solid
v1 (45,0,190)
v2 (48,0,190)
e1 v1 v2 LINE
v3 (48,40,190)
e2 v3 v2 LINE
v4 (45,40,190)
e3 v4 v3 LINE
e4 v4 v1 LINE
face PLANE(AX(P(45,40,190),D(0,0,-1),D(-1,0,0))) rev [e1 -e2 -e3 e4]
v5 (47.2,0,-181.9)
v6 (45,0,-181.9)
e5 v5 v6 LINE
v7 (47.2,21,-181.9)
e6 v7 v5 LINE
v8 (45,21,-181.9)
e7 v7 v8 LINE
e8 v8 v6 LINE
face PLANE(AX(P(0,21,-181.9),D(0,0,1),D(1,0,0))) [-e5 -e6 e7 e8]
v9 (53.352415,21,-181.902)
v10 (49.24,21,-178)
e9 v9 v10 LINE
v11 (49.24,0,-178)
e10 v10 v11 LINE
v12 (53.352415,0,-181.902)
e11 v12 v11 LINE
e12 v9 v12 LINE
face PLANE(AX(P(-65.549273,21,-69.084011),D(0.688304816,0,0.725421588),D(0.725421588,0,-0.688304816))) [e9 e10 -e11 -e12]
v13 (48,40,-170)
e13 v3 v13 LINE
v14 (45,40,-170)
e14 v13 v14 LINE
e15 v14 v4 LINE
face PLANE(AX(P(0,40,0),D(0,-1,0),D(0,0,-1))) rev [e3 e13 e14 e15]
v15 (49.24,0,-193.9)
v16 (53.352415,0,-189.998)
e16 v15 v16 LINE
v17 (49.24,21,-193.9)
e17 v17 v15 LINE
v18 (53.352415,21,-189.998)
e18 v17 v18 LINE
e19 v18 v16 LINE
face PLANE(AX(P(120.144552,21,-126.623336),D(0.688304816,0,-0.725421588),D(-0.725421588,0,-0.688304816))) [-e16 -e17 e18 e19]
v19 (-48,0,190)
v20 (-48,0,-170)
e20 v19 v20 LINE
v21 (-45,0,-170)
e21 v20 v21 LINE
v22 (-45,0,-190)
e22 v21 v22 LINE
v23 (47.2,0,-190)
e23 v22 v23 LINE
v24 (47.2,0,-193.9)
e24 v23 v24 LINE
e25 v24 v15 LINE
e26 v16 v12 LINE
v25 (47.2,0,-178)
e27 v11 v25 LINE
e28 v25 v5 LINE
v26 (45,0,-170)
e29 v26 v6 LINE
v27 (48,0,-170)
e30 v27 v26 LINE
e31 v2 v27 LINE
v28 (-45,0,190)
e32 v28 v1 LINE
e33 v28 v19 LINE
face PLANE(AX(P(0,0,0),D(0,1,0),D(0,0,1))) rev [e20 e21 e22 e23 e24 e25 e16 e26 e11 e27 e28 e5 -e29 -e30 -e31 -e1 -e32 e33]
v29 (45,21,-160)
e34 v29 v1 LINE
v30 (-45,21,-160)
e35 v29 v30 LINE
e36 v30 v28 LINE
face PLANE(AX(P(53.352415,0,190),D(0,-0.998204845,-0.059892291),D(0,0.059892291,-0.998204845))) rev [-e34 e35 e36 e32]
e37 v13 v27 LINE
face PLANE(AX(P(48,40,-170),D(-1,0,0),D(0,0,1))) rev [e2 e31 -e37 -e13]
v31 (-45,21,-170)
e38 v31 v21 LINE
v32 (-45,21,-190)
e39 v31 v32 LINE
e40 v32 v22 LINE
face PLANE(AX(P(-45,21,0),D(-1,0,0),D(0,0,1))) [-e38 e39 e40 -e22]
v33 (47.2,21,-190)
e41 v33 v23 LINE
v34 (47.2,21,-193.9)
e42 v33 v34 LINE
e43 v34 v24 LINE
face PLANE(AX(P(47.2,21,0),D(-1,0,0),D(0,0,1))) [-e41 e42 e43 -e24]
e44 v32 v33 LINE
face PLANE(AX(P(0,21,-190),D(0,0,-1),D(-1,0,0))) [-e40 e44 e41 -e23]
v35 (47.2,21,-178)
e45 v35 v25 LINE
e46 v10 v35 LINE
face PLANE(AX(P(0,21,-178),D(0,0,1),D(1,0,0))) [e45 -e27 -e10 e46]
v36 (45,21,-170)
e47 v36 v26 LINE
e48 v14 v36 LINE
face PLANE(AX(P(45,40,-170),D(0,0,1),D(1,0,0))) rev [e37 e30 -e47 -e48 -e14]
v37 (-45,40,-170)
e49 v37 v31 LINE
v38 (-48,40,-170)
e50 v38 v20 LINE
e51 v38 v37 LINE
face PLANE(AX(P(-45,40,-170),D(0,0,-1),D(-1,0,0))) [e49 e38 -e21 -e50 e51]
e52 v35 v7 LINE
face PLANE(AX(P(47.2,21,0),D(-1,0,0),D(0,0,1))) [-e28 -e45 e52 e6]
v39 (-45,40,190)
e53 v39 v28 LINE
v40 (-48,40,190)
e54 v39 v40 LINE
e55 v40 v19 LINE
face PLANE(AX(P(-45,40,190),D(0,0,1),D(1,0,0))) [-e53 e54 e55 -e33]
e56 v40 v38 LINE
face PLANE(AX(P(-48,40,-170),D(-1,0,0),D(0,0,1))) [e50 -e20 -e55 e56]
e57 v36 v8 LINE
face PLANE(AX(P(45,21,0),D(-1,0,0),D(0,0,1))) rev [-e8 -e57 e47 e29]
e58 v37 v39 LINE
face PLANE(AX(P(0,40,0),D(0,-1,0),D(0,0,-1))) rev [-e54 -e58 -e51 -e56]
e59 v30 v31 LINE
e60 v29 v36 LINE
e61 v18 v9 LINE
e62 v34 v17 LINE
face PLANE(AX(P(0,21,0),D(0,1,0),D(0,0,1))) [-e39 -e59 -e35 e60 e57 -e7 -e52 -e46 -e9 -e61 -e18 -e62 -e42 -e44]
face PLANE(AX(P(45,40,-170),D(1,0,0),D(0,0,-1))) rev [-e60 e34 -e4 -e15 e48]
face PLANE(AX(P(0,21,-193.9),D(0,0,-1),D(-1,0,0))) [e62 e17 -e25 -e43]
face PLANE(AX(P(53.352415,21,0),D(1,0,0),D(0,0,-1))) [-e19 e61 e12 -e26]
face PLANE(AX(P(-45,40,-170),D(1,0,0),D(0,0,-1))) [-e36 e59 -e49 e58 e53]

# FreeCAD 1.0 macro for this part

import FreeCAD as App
import Part
import Sketcher

doc = App.newDocument("Part")
body = doc.addObject("PartDesign::Body", "Body")

# Sketch on XZ plane
sketch1 = body.newObject("Sketcher::SketchObject", "Sketch")
sketch1.AttachmentSupport = (doc.getObject("XZ_Plane"), [""])
sketch1.MapMode = "FlatFace"
sketch1.addGeometry([
    Part.LineSegment(App.Vector(-45, -190, 0), App.Vector(-45, 190, 0)),  # 0
    Part.LineSegment(App.Vector(-45, 190, 0), App.Vector(45, 190, 0)),  # 1
    Part.LineSegment(App.Vector(45, 190, 0), App.Vector(45, -181.9, 0)),  # 2
    Part.LineSegment(App.Vector(45, -181.9, 0), App.Vector(47.2, -181.9, 0)),  # 3
    Part.LineSegment(App.Vector(47.2, -181.9, 0), App.Vector(47.2, -178, 0)),  # 4
    Part.LineSegment(App.Vector(47.2, -178, 0), App.Vector(49.24, -178, 0)),  # 5
    Part.LineSegment(App.Vector(49.24, -178, 0), App.Vector(53.352415, -181.902, 0)),  # 6
    Part.LineSegment(App.Vector(53.352415, -181.902, 0), App.Vector(53.352415, -189.998, 0)),  # 7
    Part.LineSegment(App.Vector(53.352415, -189.998, 0), App.Vector(49.24, -193.9, 0)),  # 8
    Part.LineSegment(App.Vector(49.24, -193.9, 0), App.Vector(47.2, -193.9, 0)),  # 9
    Part.LineSegment(App.Vector(47.2, -193.9, 0), App.Vector(47.2, -190, 0)),  # 10
    Part.LineSegment(App.Vector(47.2, -190, 0), App.Vector(-45, -190, 0)),  # 11
], False)
sketch1.addConstraint([
    Sketcher.Constraint("Coincident", 0, 2, 1, 1),
    Sketcher.Constraint("Coincident", 1, 2, 2, 1),
    Sketcher.Constraint("Coincident", 2, 2, 3, 1),
    Sketcher.Constraint("Coincident", 3, 2, 4, 1),
    Sketcher.Constraint("Coincident", 4, 2, 5, 1),
    Sketcher.Constraint("Coincident", 5, 2, 6, 1),
    Sketcher.Constraint("Coincident", 6, 2, 7, 1),
    Sketcher.Constraint("Coincident", 7, 2, 8, 1),
    Sketcher.Constraint("Coincident", 8, 2, 9, 1),
    Sketcher.Constraint("Coincident", 9, 2, 10, 1),
    Sketcher.Constraint("Coincident", 10, 2, 11, 1),
    Sketcher.Constraint("Coincident", 11, 2, 0, 1),
    Sketcher.Constraint("Vertical", 0),
    Sketcher.Constraint("Horizontal", 1),
    Sketcher.Constraint("Vertical", 2),
    Sketcher.Constraint("Horizontal", 3),
    Sketcher.Constraint("Vertical", 4),
    Sketcher.Constraint("Horizontal", 5),
    Sketcher.Constraint("Vertical", 7),
    Sketcher.Constraint("Horizontal", 9),
    Sketcher.Constraint("Vertical", 10),
    Sketcher.Constraint("Horizontal", 11),
    Sketcher.Constraint("Symmetric", 1, 2, 11, 2, -1, 1),
    Sketcher.Constraint("Vertical", 5, 2, 8, 2),
    Sketcher.Constraint("Vertical", 4, 2, 9, 2),
    Sketcher.Constraint("Equal", 4, 10),
    Sketcher.Constraint("Equal", 6, 8),
    Sketcher.Constraint("DistanceX", 1, 1, 1, 2, 90.0),
    Sketcher.Constraint("DistanceY", 0, 1, 0, 2, 380.0),
    Sketcher.Constraint("DistanceX", 3, 1, 3, 2, 2.2),
    Sketcher.Constraint("DistanceY", 2, 2, 2, 1, 371.9),
    Sketcher.Constraint("DistanceY", 4, 1, 4, 2, 3.9),
    Sketcher.Constraint("DistanceX", 5, 1, 5, 2, 2.04),
    Sketcher.Constraint("DistanceY", 7, 2, 7, 1, 8.096),
    Sketcher.Constraint("Distance", 6, 5.669),
])
pad1 = body.newObject("PartDesign::Pad", "Pad")
pad1.Profile = sketch1
pad1.Length = 21
pad1.Reversed = True

# Sketch on YZ plane
sketch2 = body.newObject("Sketcher::SketchObject", "Sketch001")
sketch2.AttachmentSupport = (doc.getObject("YZ_Plane"), [""])
sketch2.MapMode = "FlatFace"
sketch2.AttachmentOffset = App.Placement(App.Vector(0, 0, -45), App.Rotation())
sketch2.addGeometry([
    Part.LineSegment(App.Vector(21, -160, 0), App.Vector(0, 190, 0)),
    Part.LineSegment(App.Vector(0, 190, 0), App.Vector(21, 190, 0)),
    Part.LineSegment(App.Vector(21, 190, 0), App.Vector(21, -160, 0)),
], False)
sketch2.addConstraint([
    Sketcher.Constraint("Coincident", 0, 2, 1, 1),
    Sketcher.Constraint("Coincident", 1, 2, 2, 1),
    Sketcher.Constraint("Coincident", 2, 2, 0, 1),
    Sketcher.Constraint("Horizontal", 1),
    Sketcher.Constraint("Vertical", 2),
    Sketcher.Constraint("PointOnObject", 0, 2, -2),
    Sketcher.Constraint("DistanceX", 1, 1, 1, 2, 21.0),
    Sketcher.Constraint("DistanceY", 2, 2, 2, 1, 350.0),
    Sketcher.Constraint("DistanceY", -1, 1, 0, 2, 190.0),
])
pocket1 = body.newObject("PartDesign::Pocket", "Pocket")
pocket1.Profile = sketch2
pocket1.Type = "ThroughAll"
pocket1.Reversed = True

# Sketch on XZ plane
sketch3 = body.newObject("Sketcher::SketchObject", "Sketch002")
sketch3.AttachmentSupport = (doc.getObject("XZ_Plane"), [""])
sketch3.MapMode = "FlatFace"
sketch3.addGeometry([
    Part.LineSegment(App.Vector(-48, 190, 0), App.Vector(-48, -170, 0)),
    Part.LineSegment(App.Vector(-48, -170, 0), App.Vector(-45, -170, 0)),
    Part.LineSegment(App.Vector(-45, -170, 0), App.Vector(-45, 190, 0)),
    Part.LineSegment(App.Vector(-45, 190, 0), App.Vector(-48, 190, 0)),
], False)
sketch3.addConstraint([
    Sketcher.Constraint("Coincident", 0, 2, 1, 1),
    Sketcher.Constraint("Coincident", 1, 2, 2, 1),
    Sketcher.Constraint("Coincident", 2, 2, 3, 1),
    Sketcher.Constraint("Coincident", 3, 2, 0, 1),
    Sketcher.Constraint("Vertical", 0),
    Sketcher.Constraint("Horizontal", 1),
    Sketcher.Constraint("Vertical", 2),
    Sketcher.Constraint("Horizontal", 3),
    Sketcher.Constraint("DistanceX", 1, 1, 1, 2, 3.0),
    Sketcher.Constraint("DistanceY", 0, 2, 0, 1, 360.0),
    Sketcher.Constraint("DistanceX", 0, 2, -1, 1, 48.0),
    Sketcher.Constraint("DistanceY", 0, 2, -1, 1, 170.0),
])
pad2 = body.newObject("PartDesign::Pad", "Pad001")
pad2.Profile = sketch3
pad2.Length = 40
pad2.Reversed = True
doc.recompute()

mirrored = body.newObject("PartDesign::Mirrored", "Mirrored")
mirrored.Originals = [pad2]
mirrored.MirrorPlane = (doc.getObject("YZ_Plane"), [""])
body.Tip = mirrored

doc.recompute()
